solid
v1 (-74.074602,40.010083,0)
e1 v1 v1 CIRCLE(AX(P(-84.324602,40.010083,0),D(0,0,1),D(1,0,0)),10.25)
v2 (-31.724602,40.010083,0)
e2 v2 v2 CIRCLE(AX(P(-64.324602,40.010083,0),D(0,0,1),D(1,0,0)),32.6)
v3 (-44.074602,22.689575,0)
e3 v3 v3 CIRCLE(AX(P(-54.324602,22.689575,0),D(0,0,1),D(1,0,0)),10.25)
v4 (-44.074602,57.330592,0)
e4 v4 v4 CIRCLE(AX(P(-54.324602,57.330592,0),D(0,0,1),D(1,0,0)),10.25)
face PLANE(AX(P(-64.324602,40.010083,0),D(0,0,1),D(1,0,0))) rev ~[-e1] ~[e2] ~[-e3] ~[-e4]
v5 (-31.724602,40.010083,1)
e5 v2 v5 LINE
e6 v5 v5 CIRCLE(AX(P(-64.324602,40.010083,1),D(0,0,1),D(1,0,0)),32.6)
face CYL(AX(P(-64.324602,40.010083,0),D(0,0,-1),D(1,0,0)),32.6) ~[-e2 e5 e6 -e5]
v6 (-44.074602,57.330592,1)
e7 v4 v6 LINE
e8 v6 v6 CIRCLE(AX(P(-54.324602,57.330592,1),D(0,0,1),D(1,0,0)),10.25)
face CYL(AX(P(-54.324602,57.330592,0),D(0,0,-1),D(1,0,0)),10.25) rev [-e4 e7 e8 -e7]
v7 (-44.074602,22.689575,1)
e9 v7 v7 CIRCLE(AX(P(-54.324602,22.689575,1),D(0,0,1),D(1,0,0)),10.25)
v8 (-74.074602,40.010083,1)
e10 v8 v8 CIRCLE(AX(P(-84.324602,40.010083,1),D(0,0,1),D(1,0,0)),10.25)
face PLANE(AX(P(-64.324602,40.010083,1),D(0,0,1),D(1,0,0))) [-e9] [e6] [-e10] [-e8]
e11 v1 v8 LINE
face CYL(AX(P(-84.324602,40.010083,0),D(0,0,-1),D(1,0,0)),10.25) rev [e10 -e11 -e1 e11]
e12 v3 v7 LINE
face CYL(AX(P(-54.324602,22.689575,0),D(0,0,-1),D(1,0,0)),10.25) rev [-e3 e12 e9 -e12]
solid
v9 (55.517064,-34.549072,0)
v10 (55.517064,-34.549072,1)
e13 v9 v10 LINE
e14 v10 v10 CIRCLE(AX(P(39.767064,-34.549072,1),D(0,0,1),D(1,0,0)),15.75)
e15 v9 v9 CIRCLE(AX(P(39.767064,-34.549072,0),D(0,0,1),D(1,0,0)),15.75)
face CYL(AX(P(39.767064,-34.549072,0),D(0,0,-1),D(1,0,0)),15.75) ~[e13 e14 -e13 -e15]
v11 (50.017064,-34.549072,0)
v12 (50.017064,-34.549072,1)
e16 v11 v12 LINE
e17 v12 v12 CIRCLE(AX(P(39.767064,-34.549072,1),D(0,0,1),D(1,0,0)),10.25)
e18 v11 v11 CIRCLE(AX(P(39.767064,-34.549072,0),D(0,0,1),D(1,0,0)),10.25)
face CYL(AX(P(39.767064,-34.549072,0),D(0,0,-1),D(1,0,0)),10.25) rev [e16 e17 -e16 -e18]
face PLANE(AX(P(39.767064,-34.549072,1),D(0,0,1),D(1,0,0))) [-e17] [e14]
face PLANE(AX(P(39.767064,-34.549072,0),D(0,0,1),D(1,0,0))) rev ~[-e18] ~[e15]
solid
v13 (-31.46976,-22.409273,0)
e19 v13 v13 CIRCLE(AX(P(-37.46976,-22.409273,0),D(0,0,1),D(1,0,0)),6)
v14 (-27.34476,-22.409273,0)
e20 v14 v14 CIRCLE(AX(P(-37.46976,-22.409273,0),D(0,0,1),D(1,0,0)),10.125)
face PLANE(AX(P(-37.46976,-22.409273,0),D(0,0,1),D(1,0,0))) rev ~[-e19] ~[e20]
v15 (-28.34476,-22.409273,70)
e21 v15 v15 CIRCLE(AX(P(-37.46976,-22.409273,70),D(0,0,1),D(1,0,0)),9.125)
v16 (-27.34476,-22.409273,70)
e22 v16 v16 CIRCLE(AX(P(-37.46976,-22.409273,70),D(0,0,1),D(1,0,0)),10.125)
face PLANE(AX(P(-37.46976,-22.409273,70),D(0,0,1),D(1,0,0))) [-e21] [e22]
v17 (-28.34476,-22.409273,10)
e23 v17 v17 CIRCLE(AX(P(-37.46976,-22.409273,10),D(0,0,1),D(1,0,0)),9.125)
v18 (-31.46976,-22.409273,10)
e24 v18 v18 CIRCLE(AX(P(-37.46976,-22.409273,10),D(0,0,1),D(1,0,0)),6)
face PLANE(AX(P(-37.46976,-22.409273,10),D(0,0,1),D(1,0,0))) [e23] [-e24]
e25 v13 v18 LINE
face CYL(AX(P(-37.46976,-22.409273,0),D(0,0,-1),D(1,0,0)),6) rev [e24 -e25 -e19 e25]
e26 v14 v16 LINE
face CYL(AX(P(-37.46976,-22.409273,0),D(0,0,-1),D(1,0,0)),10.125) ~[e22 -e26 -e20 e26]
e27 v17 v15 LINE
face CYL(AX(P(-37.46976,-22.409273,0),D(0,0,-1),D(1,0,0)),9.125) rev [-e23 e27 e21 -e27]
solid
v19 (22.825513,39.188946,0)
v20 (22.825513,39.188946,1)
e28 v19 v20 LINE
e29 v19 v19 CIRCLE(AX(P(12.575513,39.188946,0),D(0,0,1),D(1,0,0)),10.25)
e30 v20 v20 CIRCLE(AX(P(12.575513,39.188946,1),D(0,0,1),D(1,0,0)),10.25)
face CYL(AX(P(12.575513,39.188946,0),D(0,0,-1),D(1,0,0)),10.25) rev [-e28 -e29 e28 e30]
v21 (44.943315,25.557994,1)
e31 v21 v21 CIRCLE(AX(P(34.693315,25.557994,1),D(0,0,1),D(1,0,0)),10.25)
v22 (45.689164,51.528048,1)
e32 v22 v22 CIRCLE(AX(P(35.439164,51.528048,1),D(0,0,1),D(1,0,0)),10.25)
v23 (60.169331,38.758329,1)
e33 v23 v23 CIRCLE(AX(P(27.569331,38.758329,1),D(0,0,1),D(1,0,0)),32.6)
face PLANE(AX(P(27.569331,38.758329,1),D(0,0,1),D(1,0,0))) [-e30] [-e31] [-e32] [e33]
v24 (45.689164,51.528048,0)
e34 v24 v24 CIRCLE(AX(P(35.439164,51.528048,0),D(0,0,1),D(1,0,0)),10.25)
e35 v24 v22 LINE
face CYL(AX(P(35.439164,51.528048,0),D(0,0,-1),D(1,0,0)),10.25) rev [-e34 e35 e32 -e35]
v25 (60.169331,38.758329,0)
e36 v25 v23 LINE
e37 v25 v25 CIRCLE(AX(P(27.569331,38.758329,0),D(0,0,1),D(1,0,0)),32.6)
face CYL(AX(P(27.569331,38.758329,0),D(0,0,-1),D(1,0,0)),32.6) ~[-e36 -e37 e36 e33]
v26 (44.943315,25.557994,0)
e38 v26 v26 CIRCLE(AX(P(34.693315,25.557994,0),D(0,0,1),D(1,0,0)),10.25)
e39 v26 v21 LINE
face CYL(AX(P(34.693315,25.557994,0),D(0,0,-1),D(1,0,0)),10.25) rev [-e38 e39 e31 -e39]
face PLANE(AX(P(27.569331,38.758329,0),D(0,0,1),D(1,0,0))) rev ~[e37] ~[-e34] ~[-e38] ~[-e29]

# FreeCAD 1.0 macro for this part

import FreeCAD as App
import Part
import Sketcher
Q = App.Units.Quantity

doc = App.newDocument("Part")
body = doc.addObject("PartDesign::Body", "Body")
body.AllowCompound = True

sketch1 = body.newObject("Sketcher::SketchObject", "Sketch")
sketch1.AttachmentSupport = (doc.getObject("XY_Plane"), [""])
sketch1.MapMode = "FlatFace"
sketch1.addGeometry(Part.Circle(App.Vector(-64, 40, 0), App.Vector(0, 0, 1), 33), False)
sketch1.addGeometry(Part.Circle(App.Vector(-84, 40, 0), App.Vector(0, 0, 1), 10), False)
sketch1.addGeometry(Part.Circle(App.Vector(-54, 23, 0), App.Vector(0, 0, 1), 10), False)
sketch1.addGeometry(Part.Circle(App.Vector(-54, 57, 0), App.Vector(0, 0, 1), 10), False)
sketch1.addGeometry(Part.Circle(App.Vector(28, 39, 0), App.Vector(0, 0, 1), 33), False)
sketch1.addGeometry(Part.Circle(App.Vector(35, 26, 0), App.Vector(0, 0, 1), 10), False)
sketch1.addGeometry(Part.Circle(App.Vector(13, 39, 0), App.Vector(0, 0, 1), 10), False)
sketch1.addGeometry(Part.Circle(App.Vector(35, 52, 0), App.Vector(0, 0, 1), 10), False)
sketch1.addConstraint(Sketcher.Constraint("Equal", 1, 2))
sketch1.addConstraint(Sketcher.Constraint("Equal", 2, 3))
sketch1.addConstraint(Sketcher.Constraint("Equal", 0, 4))
sketch1.addConstraint(Sketcher.Constraint("Equal", 3, 5))
sketch1.addConstraint(Sketcher.Constraint("Equal", 5, 6))
sketch1.addConstraint(Sketcher.Constraint("Equal", 6, 7))
sketch1.addConstraint(Sketcher.Constraint("Horizontal", 0, 3, 1, 3))
sketch1.addConstraint(Sketcher.Constraint("Vertical", 2, 3, 3, 3))
sketch1.addConstraint(Sketcher.Constraint("Diameter", 0, Q("65.2 mm")))
sketch1.addConstraint(Sketcher.Constraint("Diameter", 1, Q("20.5 mm")))
sketch1.addConstraint(Sketcher.Constraint("DistanceX", 1, 3, 0, 3, Q("20 mm")))
sketch1.addConstraint(Sketcher.Constraint("DistanceX", 0, 3, 2, 3, Q("10 mm")))
sketch1.addConstraint(Sketcher.Constraint("DistanceX", 0, 3, -1, 1, Q("64.324602 mm")))
sketch1.addConstraint(Sketcher.Constraint("DistanceY", 5, 3, 3, 3, Q("31.772598 mm")))
sketch1.addConstraint(Sketcher.Constraint("DistanceX", 6, 3, 5, 3, Q("22.117802 mm")))
sketch1.addConstraint(Sketcher.Constraint("DistanceY", 6, 3, 7, 3, Q("12.339102 mm")))
sketch1.addConstraint(Sketcher.Constraint("DistanceX", -1, 1, 4, 3, Q("27.569331 mm")))
sketch1.addConstraint(Sketcher.Constraint("DistanceY", -1, 1, 4, 3, Q("38.758329 mm")))
sketch1.addConstraint(Sketcher.Constraint("DistanceY", 2, 3, 0, 3, Q("17.320508 mm")))
sketch1.addConstraint(Sketcher.Constraint("DistanceY", 0, 3, 3, 3, Q("17.320509 mm")))
sketch1.addConstraint(Sketcher.Constraint("DistanceY", 2, 3, 6, 3, Q("16.499371 mm")))
sketch1.addConstraint(Sketcher.Constraint("DistanceY", 4, 3, 7, 3, Q("12.769719 mm")))
sketch1.addConstraint(Sketcher.Constraint("DistanceX", 6, 3, 7, 3, Q("22.863651 mm")))
sketch1.addConstraint(Sketcher.Constraint("DistanceX", -1, 1, 5, 3, Q("34.693315 mm")))
pad1 = body.newObject("PartDesign::Pad", "Pad")
pad1.Profile = sketch1
pad1.Length = 1
body2 = doc.addObject("PartDesign::Body", "Body001")

sketch2 = body2.newObject("Sketcher::SketchObject", "Sketch001")
sketch2.AttachmentSupport = (doc.getObject("XY_Plane001"), [""])
sketch2.MapMode = "FlatFace"
sketch2.addGeometry(Part.Circle(App.Vector(-37, -22, 0), App.Vector(0, 0, 1), 10), False)
sketch2.addGeometry(Part.Circle(App.Vector(-37, -22, 0), App.Vector(0, 0, 1), 9), False)
sketch2.addConstraint(Sketcher.Constraint("Coincident", 1, 3, 0, 3))
sketch2.addConstraint(Sketcher.Constraint("Diameter", 0, Q("20.25 mm")))
sketch2.addConstraint(Sketcher.Constraint("Diameter", 1, Q("18.25 mm")))
sketch2.addConstraint(Sketcher.Constraint("DistanceX", 0, 3, -1, 1, Q("37.46976 mm")))
sketch2.addConstraint(Sketcher.Constraint("DistanceY", 0, 3, -1, 1, Q("22.409273 mm")))
pad2 = body2.newObject("PartDesign::Pad", "Pad001")
pad2.Profile = sketch2
pad2.Length = 70

sketch3 = body2.newObject("Sketcher::SketchObject", "Sketch002")
sketch3.AttachmentSupport = (doc.getObject("XY_Plane001"), [""])
sketch3.MapMode = "FlatFace"
sketch3.addGeometry(Part.Circle(App.Vector(-37, -22, 0), App.Vector(0, 0, 1), 9), False)
sketch3.addGeometry(Part.Circle(App.Vector(-37, -22, 0), App.Vector(0, 0, 1), 6), False)
sketch3.addConstraint(Sketcher.Constraint("Coincident", 1, 3, 0, 3))
sketch3.addConstraint(Sketcher.Constraint("Diameter", 1, Q("12 mm")))
sketch3.addConstraint(Sketcher.Constraint("Diameter", 0, Q("18.25 mm")))
sketch3.addConstraint(Sketcher.Constraint("DistanceX", 0, 3, -1, 1, Q("37.46976 mm")))
sketch3.addConstraint(Sketcher.Constraint("DistanceY", 0, 3, -1, 1, Q("22.409273 mm")))
pad3 = body2.newObject("PartDesign::Pad", "Pad002")
pad3.Profile = sketch3
pad3.Length = 10
body3 = doc.addObject("PartDesign::Body", "Body002")

sketch4 = body3.newObject("Sketcher::SketchObject", "Sketch003")
sketch4.AttachmentSupport = (doc.getObject("XY_Plane002"), [""])
sketch4.MapMode = "FlatFace"
sketch4.addGeometry(Part.Circle(App.Vector(40, -35, 0), App.Vector(0, 0, 1), 16), False)
sketch4.addGeometry(Part.Circle(App.Vector(40, -35, 0), App.Vector(0, 0, 1), 10), False)
sketch4.addConstraint(Sketcher.Constraint("Coincident", 1, 3, 0, 3))
sketch4.addConstraint(Sketcher.Constraint("Diameter", 0, Q("31.5 mm")))
sketch4.addConstraint(Sketcher.Constraint("Diameter", 1, Q("20.5 mm")))
sketch4.addConstraint(Sketcher.Constraint("DistanceX", -1, 1, 0, 3, Q("39.767064 mm")))
sketch4.addConstraint(Sketcher.Constraint("DistanceY", 0, 3, -1, 1, Q("34.549072 mm")))
pad4 = body3.newObject("PartDesign::Pad", "Pad003")
pad4.Profile = sketch4
pad4.Length = 1

doc.recompute()
